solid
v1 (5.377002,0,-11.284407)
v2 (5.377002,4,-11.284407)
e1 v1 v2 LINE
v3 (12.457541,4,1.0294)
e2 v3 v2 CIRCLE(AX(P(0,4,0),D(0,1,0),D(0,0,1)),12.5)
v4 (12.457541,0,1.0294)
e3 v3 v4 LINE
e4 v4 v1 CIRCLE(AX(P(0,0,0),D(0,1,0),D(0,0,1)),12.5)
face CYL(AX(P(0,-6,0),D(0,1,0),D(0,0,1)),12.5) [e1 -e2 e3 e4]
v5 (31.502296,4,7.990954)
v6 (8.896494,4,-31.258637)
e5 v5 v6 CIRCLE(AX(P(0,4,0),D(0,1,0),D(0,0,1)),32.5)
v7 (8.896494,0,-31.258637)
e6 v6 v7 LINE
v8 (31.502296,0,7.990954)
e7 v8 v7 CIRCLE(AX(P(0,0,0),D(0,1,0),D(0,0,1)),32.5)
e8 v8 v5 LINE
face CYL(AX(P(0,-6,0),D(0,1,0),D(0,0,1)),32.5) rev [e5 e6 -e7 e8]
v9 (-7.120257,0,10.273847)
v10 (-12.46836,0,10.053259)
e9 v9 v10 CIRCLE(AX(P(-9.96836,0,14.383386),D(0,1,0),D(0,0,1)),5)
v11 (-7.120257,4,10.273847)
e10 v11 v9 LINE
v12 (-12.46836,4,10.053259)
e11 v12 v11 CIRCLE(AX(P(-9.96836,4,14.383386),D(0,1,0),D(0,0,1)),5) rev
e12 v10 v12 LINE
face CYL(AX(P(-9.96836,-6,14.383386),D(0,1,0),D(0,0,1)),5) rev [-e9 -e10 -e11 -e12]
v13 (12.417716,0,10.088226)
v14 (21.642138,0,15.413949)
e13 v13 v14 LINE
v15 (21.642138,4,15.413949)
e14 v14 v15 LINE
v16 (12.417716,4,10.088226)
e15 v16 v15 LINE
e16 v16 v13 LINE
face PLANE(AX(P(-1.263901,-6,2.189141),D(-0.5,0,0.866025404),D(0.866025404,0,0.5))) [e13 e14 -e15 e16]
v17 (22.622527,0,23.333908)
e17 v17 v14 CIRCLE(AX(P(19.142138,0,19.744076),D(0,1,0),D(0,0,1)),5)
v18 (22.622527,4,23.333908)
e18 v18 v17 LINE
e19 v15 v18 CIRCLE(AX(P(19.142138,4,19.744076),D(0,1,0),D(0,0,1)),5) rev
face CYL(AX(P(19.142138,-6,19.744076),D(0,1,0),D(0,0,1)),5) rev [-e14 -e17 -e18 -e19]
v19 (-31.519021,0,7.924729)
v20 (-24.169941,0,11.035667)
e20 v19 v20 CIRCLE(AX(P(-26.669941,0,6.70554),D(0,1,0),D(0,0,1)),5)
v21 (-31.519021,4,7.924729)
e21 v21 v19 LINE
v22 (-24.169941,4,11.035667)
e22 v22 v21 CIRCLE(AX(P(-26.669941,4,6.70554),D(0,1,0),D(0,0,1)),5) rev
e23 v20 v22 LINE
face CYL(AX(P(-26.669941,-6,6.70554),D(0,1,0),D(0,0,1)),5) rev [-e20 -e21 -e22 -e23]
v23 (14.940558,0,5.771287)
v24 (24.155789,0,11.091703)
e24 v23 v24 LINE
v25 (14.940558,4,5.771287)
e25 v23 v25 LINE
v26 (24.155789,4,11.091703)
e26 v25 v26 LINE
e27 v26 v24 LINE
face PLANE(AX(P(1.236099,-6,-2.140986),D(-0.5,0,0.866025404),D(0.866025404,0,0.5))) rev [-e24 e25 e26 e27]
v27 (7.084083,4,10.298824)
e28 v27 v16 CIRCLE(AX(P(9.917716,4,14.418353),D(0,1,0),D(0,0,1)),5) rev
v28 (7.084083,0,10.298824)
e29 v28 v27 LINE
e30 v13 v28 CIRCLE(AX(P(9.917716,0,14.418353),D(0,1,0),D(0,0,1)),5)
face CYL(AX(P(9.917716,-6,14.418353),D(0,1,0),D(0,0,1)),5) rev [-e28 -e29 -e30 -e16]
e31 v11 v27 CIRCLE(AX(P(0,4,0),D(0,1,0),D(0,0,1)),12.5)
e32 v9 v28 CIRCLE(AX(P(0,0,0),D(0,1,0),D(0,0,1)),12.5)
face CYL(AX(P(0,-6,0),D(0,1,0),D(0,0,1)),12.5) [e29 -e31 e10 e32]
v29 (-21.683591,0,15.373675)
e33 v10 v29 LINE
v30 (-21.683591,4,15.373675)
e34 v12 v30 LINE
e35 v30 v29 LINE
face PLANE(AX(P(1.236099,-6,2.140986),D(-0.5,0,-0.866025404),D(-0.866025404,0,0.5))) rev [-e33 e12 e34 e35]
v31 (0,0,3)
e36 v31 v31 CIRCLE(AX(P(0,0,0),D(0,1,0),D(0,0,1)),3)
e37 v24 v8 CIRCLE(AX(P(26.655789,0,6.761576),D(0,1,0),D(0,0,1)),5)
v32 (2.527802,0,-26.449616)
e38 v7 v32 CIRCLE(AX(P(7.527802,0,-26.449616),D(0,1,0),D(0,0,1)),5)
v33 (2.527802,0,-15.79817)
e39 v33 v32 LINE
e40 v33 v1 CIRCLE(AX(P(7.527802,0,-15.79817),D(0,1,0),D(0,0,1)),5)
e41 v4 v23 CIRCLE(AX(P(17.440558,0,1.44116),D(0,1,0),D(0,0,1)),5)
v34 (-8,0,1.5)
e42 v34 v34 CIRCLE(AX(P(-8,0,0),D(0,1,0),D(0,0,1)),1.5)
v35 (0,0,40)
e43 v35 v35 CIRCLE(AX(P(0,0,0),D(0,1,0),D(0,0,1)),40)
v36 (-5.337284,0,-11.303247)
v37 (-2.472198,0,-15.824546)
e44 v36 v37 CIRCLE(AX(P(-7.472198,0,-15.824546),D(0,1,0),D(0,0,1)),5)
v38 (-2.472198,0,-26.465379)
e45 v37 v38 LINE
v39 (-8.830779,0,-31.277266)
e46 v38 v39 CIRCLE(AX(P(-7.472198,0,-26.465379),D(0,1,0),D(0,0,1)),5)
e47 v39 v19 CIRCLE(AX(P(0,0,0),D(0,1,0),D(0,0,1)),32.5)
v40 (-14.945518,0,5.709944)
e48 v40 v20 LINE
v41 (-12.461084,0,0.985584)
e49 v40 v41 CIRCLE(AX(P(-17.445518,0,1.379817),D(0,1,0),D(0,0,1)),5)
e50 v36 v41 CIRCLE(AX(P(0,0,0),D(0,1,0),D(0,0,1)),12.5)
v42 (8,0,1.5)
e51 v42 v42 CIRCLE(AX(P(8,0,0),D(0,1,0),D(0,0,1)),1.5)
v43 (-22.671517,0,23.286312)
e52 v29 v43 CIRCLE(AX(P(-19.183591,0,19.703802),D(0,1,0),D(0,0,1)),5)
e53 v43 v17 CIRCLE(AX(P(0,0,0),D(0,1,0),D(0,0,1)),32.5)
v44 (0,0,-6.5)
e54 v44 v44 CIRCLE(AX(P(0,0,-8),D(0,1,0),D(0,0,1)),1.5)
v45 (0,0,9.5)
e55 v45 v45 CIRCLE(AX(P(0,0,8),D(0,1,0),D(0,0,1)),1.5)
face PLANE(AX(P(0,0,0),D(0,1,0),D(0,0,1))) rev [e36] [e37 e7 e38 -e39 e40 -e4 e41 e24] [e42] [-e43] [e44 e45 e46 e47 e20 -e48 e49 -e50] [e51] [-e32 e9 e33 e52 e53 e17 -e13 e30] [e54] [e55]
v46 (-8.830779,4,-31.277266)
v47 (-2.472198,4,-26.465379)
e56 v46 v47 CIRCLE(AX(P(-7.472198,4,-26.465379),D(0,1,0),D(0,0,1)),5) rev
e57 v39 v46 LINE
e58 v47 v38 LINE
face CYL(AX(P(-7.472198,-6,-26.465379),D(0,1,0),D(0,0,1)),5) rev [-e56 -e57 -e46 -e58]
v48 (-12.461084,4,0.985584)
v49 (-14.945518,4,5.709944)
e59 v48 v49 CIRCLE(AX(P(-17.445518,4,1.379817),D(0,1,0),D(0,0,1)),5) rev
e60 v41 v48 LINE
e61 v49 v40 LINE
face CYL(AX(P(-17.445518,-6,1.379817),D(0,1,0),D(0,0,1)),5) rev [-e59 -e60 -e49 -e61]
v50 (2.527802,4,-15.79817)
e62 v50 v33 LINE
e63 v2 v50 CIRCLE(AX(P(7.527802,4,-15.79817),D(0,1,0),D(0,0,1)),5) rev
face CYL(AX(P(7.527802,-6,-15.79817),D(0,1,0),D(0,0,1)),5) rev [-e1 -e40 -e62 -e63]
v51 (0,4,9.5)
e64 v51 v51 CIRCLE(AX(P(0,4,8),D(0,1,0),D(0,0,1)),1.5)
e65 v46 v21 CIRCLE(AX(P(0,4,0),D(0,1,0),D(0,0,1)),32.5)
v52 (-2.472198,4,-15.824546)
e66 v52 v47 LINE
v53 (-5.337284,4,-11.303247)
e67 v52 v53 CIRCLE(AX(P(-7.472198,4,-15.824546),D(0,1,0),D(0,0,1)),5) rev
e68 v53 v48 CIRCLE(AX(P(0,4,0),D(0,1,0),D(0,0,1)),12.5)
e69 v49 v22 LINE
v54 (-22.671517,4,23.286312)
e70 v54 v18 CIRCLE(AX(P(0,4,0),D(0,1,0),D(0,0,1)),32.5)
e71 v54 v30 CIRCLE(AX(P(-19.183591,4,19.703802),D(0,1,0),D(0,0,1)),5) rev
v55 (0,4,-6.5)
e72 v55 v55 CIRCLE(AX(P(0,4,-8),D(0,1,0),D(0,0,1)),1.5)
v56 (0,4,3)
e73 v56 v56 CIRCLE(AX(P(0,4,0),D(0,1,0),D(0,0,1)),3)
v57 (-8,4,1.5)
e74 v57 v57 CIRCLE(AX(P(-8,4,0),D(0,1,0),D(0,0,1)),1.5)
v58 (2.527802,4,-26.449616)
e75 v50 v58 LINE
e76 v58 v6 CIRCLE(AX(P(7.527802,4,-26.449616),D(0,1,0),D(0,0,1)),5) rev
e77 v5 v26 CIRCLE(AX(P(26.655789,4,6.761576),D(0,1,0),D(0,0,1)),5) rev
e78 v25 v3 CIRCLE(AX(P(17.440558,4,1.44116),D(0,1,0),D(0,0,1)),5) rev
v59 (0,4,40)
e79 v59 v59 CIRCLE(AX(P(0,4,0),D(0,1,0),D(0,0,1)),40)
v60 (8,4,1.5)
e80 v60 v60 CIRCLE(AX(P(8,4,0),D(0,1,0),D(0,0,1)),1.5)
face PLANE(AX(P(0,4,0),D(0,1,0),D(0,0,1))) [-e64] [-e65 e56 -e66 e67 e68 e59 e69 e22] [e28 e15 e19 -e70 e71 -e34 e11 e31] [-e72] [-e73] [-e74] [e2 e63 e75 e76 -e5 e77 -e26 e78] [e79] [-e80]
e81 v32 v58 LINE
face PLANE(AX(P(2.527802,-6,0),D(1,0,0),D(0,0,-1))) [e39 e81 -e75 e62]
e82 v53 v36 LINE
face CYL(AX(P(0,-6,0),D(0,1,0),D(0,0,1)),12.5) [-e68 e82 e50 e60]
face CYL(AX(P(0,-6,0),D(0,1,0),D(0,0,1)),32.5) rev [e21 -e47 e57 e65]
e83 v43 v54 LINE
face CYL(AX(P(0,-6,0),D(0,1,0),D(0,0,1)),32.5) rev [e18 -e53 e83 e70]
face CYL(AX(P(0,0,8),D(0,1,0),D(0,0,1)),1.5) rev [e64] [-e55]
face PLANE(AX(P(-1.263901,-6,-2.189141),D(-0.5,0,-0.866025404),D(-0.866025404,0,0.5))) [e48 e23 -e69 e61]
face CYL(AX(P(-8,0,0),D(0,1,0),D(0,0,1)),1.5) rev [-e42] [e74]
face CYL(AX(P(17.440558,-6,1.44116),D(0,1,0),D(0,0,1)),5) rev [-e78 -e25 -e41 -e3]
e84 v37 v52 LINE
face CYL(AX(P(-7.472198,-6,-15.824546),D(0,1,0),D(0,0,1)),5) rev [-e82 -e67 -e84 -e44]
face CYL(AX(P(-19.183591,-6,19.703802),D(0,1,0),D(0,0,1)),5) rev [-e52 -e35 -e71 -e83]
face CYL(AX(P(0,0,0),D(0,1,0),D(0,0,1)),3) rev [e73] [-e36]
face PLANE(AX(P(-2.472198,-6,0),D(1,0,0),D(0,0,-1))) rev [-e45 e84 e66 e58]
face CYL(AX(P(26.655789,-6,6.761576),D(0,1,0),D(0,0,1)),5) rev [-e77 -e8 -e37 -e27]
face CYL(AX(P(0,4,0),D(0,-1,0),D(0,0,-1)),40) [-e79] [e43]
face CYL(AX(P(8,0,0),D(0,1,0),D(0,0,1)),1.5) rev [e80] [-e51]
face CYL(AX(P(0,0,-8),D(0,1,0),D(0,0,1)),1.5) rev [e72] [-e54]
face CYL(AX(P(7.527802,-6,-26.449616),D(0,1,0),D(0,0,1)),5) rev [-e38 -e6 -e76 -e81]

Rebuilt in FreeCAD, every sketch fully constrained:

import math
import FreeCAD as App
import Part
import Sketcher
from FreeCAD import Vector
Q = App.Units.Quantity


def edges_at(feature, points):
    """Names of the edges that pass closest to the given points."""
    edges = feature.Shape.Edges
    near = lambda p: min(range(len(edges)), key=lambda i: edges[i].distToShape(Part.Vertex(*p))[0])
    return sorted({f"Edge{near(p) + 1}" for p in points})

doc = App.newDocument("Part")
body = doc.addObject("PartDesign::Body", "Body")

# Sketch on XZ plane
sketch1 = body.newObject("Sketcher::SketchObject", "Sketch")
sketch1.AttachmentSupport = (doc.getObject("XZ_Plane"), [""])
sketch1.MapMode = "FlatFace"
sketch1.addGeometry(Part.Circle(Vector(0, 0, 0), Vector(0, 0, 1), 40), False)
sketch1.addConstraint(Sketcher.Constraint("Coincident", 0, 3, -1, 1))
sketch1.addConstraint(Sketcher.Constraint("Diameter", 0, Q("80 mm")))
pad1 = body.newObject("PartDesign::Pad", "Pad")
pad1.Profile = sketch1
pad1.Length = 4
pad1.Reversed = True

# Sketch on XZ plane
sketch2 = body.newObject("Sketcher::SketchObject", "Sketch001")
sketch2.AttachmentSupport = (doc.getObject("XZ_Plane"), [""])
sketch2.MapMode = "FlatFace"
sketch2.AttachmentOffset = App.Placement(Vector(0, 0, -4), App.Rotation())
sketch2.addGeometry(Part.Circle(Vector(8, 0, 0), Vector(0, 0, 1), 1.5), False)
sketch2.addGeometry(Part.Circle(Vector(0, -8, 0), Vector(0, 0, 1), 1.5), False)
sketch2.addGeometry(Part.Circle(Vector(-8, 0, 0), Vector(0, 0, 1), 1.5), False)
sketch2.addGeometry(Part.Circle(Vector(0, 8, 0), Vector(0, 0, 1), 1.5), False)
sketch2.addGeometry(Part.Circle(Vector(0, 0, 0), Vector(0, 0, 1), 3), False)
sketch2.addConstraint(Sketcher.Constraint("Coincident", 4, 3, -1, 1))
sketch2.addConstraint(Sketcher.Constraint("Equal", 0, 1))
sketch2.addConstraint(Sketcher.Constraint("Equal", 1, 2))
sketch2.addConstraint(Sketcher.Constraint("Equal", 2, 3))
sketch2.addConstraint(Sketcher.Constraint("Symmetric", 0, 3, 2, 3, -1, 1))
sketch2.addConstraint(Sketcher.Constraint("Symmetric", 1, 3, 3, 3, -1, 1))
sketch2.addConstraint(Sketcher.Constraint("PointOnObject", 0, 3, -1))
sketch2.addConstraint(Sketcher.Constraint("PointOnObject", 1, 3, -2))
sketch2.addConstraint(Sketcher.Constraint("Diameter", 0, Q("3 mm")))
sketch2.addConstraint(Sketcher.Constraint("Diameter", 4, Q("6 mm")))
sketch2.addConstraint(Sketcher.Constraint("DistanceX", -1, 1, 0, 3, Q("8 mm")))
sketch2.addConstraint(Sketcher.Constraint("DistanceY", 1, 3, -1, 1, Q("8 mm")))
pocket1 = body.newObject("PartDesign::Pocket", "Pocket")
pocket1.Profile = sketch2
pocket1.Type = "ThroughAll"
pocket1.Reversed = True

# Sketch on XZ plane
sketch3 = body.newObject("Sketcher::SketchObject", "Sketch002")
sketch3.AttachmentSupport = (doc.getObject("XZ_Plane"), [""])
sketch3.MapMode = "FlatFace"
sketch3.AttachmentOffset = App.Placement(Vector(0, 0, -4), App.Rotation())
sketch3.addGeometry(Part.LineSegment(Vector(-29.3, 14, 0), Vector(-11.9, 3.9, 0)), False)
sketch3.addGeometry(Part.ArcOfCircle(Part.Circle(Vector(0, 0, 0), Vector(0, 0, 1), 12.5), math.radians(162), math.radians(259)), False)
sketch3.addGeometry(Part.LineSegment(Vector(-2.5, -12.3, 0), Vector(-2.5, -32.4, 0)), False)
sketch3.addGeometry(Part.ArcOfCircle(Part.Circle(Vector(0, 0, 0), Vector(0, 0, 1), 32.5), math.radians(154), math.radians(266)), False)
sketch3.addGeometry(Part.ArcOfCircle(Part.Circle(Vector(0, 0, 0), Vector(0, 0, 1), 12.5), math.radians(0), math.radians(18.59)), False)
sketch3.addGeometry(Part.LineSegment(Vector(11.8, 4, 0), Vector(29.3, 14.1, 0)), False)
sketch3.addGeometry(Part.ArcOfCircle(Part.Circle(Vector(0, 0, 0), Vector(0, 0, 1), 32.5), math.radians(0), math.radians(26)), False)
sketch3.addGeometry(Part.ArcOfCircle(Part.Circle(Vector(0, 0, 0), Vector(0, 0, 1), 32.5), math.radians(-86), math.radians(0)), False)
sketch3.addGeometry(Part.LineSegment(Vector(2.5, -32.4, 0), Vector(2.5, -12.2, 0)), False)
sketch3.addGeometry(Part.ArcOfCircle(Part.Circle(Vector(0, 0, 0), Vector(0, 0, 1), 12.5), math.radians(-78), math.radians(0)), False)
sketch3.addGeometry(Part.LineSegment(Vector(26.8, 18.4, 0), Vector(9.3, 8.3, 0)), False)
sketch3.addGeometry(Part.ArcOfCircle(Part.Circle(Vector(0, 0, 0), Vector(0, 0, 1), 12.5), math.radians(42), math.radians(139)), False)
sketch3.addGeometry(Part.LineSegment(Vector(-9.4, 8.3, 0), Vector(-26.8, 18.3, 0)), False)
sketch3.addGeometry(Part.ArcOfCircle(Part.Circle(Vector(0, 0, 0), Vector(0, 0, 1), 32.5), math.radians(34), math.radians(146)), False)
sketch3.addConstraint(Sketcher.Constraint("Coincident", 0, 2, 1, 1))
sketch3.addConstraint(Sketcher.Constraint("Coincident", 1, 2, 2, 1))
sketch3.addConstraint(Sketcher.Constraint("Coincident", 2, 2, 3, 2))
sketch3.addConstraint(Sketcher.Constraint("Coincident", 3, 1, 0, 1))
sketch3.addConstraint(Sketcher.Constraint("Coincident", 4, 2, 5, 1))
sketch3.addConstraint(Sketcher.Constraint("Coincident", 5, 2, 6, 2))
sketch3.addConstraint(Sketcher.Constraint("Tangent", 6, 1, 7, 2))
sketch3.addConstraint(Sketcher.Constraint("Coincident", 7, 1, 8, 1))
sketch3.addConstraint(Sketcher.Constraint("Coincident", 8, 2, 9, 1))
sketch3.addConstraint(Sketcher.Constraint("Tangent", 9, 2, 4, 1))
sketch3.addConstraint(Sketcher.Constraint("Coincident", 10, 2, 11, 1))
sketch3.addConstraint(Sketcher.Constraint("Coincident", 11, 2, 12, 1))
sketch3.addConstraint(Sketcher.Constraint("Coincident", 12, 2, 13, 2))
sketch3.addConstraint(Sketcher.Constraint("Coincident", 13, 1, 10, 1))
sketch3.addConstraint(Sketcher.Constraint("Vertical", 2))
sketch3.addConstraint(Sketcher.Constraint("Vertical", 8))
sketch3.addConstraint(Sketcher.Constraint("Coincident", 1, 3, -1, 1))
sketch3.addConstraint(Sketcher.Constraint("Coincident", 3, 3, -1, 1))
sketch3.addConstraint(Sketcher.Constraint("Coincident", 4, 3, -1, 1))
sketch3.addConstraint(Sketcher.Constraint("Coincident", 6, 3, -1, 1))
sketch3.addConstraint(Sketcher.Constraint("Coincident", 11, 3, -1, 1))
sketch3.addConstraint(Sketcher.Constraint("Coincident", 13, 3, -1, 1))
sketch3.addConstraint(Sketcher.Constraint("Equal", 1, 4))
sketch3.addConstraint(Sketcher.Constraint("Equal", 3, 6))
sketch3.addConstraint(Sketcher.Constraint("Equal", 6, 7))
sketch3.addConstraint(Sketcher.Constraint("Equal", 4, 9))
sketch3.addConstraint(Sketcher.Constraint("Equal", 9, 11))
sketch3.addConstraint(Sketcher.Constraint("Equal", 7, 13))
sketch3.addConstraint(Sketcher.Constraint("PointOnObject", 6, 1, -1))
sketch3.addConstraint(Sketcher.Constraint("PointOnObject", 9, 2, -1))
sketch3.addConstraint(Sketcher.Constraint("Parallel", 5, 10))
sketch3.addConstraint(Sketcher.Constraint("Parallel", 0, 12))
sketch3.addConstraint(Sketcher.Constraint("Equal", 0, 10))
sketch3.addConstraint(Sketcher.Constraint("Equal", 5, 12))
sketch3.addConstraint(Sketcher.Constraint("Radius", 1, Q("12.5 mm")))
sketch3.addConstraint(Sketcher.Constraint("Radius", 3, Q("32.5 mm")))
sketch3.addConstraint(Sketcher.Constraint("Angle", 0, Q("-30 deg")))
sketch3.addConstraint(Sketcher.Constraint("Angle", 5, Q("30 deg")))
sketch3.addConstraint(Sketcher.Constraint("DistanceX", 2, 2, 7, 1, Q("5 mm")))
sketch3.addConstraint(Sketcher.Constraint("DistanceY", 2, 2, 2, 1, Q("20.152745 mm")))
sketch3.addConstraint(Sketcher.Constraint("DistanceX", 0, 2, -1, 1, Q("11.86556 mm")))
sketch3.addConstraint(Sketcher.Constraint("DistanceY", -1, 1, 4, 2, Q("3.98556 mm")))
pocket2 = body.newObject("PartDesign::Pocket", "Pocket001")
pocket2.Profile = sketch3
pocket2.Length = 10
pocket2.Reversed = True
doc.recompute()

fillet = body.newObject("PartDesign::Fillet", "Fillet")
fillet.Base = (pocket2, edges_at(pocket2, [
    (11.848, 2, 3.986),
    (2.528, 2, -12.242),
    (2.528, 2, -32.402),
    (29.3, 2, 14.062),
    (-9.375, 2, 8.268),
    (9.338, 2, 8.31),
    (26.797, 2, 18.39),
    (-26.828, 2, 18.344),
    (-2.472, 2, -12.253),
    (-11.866, 2, 3.932),
    (-29.324, 2, 14.012),
    (-2.472, 2, -32.406),
]))
fillet.Radius = 5

doc.recompute()
